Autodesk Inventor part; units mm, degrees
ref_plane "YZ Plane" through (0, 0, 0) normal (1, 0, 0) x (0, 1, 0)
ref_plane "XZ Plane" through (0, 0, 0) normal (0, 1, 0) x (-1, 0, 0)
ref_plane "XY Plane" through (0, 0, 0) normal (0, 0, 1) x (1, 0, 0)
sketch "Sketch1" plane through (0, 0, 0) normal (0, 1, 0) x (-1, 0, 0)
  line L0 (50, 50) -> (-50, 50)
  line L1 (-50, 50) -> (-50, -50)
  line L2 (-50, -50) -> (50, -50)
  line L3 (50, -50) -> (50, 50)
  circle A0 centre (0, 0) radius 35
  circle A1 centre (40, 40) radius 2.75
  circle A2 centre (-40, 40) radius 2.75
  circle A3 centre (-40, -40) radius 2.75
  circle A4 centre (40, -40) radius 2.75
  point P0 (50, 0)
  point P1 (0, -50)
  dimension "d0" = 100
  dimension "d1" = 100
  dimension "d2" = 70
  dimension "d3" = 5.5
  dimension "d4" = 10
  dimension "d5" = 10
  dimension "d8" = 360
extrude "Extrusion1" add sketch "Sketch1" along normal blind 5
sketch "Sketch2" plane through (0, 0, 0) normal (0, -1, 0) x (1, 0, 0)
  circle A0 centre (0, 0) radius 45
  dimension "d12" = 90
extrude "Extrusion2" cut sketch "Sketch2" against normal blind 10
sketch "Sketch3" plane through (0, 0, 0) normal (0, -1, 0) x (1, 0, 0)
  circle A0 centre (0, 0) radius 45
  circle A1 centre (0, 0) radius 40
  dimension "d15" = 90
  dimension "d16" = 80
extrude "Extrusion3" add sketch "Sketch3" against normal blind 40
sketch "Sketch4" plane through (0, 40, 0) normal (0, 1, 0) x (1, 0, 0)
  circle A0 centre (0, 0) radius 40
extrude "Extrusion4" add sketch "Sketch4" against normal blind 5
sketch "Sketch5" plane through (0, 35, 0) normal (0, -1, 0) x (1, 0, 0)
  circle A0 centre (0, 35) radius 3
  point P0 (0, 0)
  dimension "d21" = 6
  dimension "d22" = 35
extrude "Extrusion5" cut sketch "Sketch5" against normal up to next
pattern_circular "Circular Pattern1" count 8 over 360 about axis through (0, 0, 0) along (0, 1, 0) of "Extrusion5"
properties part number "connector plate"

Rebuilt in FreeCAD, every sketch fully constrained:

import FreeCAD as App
import Part
import Sketcher

V = App.Vector
Q = App.Units.Quantity

doc = App.newDocument("Part")
body = doc.addObject("PartDesign::Body", "Body")

sketch1 = doc.addObject("Sketcher::SketchObject", "Sketch")
body.addObject(sketch1)
sketch1.AttachmentSupport = (doc.XZ_Plane, [""])
sketch1.MapMode = "FlatFace"
sketch1.addGeometry([
    Part.LineSegment(V(-50, -50, 0), V(-50, 50, 0)),
    Part.LineSegment(V(-50, 50, 0), V(50, 50, 0)),
    Part.LineSegment(V(50, 50, 0), V(50, -50, 0)),
    Part.LineSegment(V(50, -50, 0), V(-50, -50, 0)),
    Part.Circle(V(40, -40, 0), V(0, 0, 1), 2.8),
    Part.Circle(V(-40, -40, 0), V(0, 0, 1), 2.8),
    Part.Circle(V(40, 40, 0), V(0, 0, 1), 2.8),
    Part.Circle(V(0, 0, 0), V(0, 0, 1), 35),
    Part.Circle(V(-40, 40, 0), V(0, 0, 1), 2.8),
], False)
sketch1.addConstraint([
    Sketcher.Constraint("Coincident", 0, 2, 1, 1),
    Sketcher.Constraint("Coincident", 1, 2, 2, 1),
    Sketcher.Constraint("Coincident", 2, 2, 3, 1),
    Sketcher.Constraint("Coincident", 3, 2, 0, 1),
    Sketcher.Constraint("Vertical", 0),
    Sketcher.Constraint("Horizontal", 1),
    Sketcher.Constraint("Vertical", 2),
    Sketcher.Constraint("Horizontal", 3),
    Sketcher.Constraint("Coincident", 7, 3, -1, 1),
    Sketcher.Constraint("Equal", 4, 5),
    Sketcher.Constraint("Equal", 5, 6),
    Sketcher.Constraint("Equal", 6, 8),
    Sketcher.Constraint("Symmetric", 5, 3, 6, 3, -1, 1),
    Sketcher.Constraint("Symmetric", 4, 3, 8, 3, -1, 1),
    Sketcher.Constraint("Symmetric", 0, 2, 2, 2, -1, 1),
    Sketcher.Constraint("Symmetric", 4, 3, 5, 3, -2),
    Sketcher.Constraint("Equal", 3, 0),
    Sketcher.Constraint("Diameter", 7, Q("70 mm")),
    Sketcher.Constraint("Diameter", 4, Q("5.5 mm")),
    Sketcher.Constraint("DistanceX", 1, 1, 1, 2, Q("100 mm")),
    Sketcher.Constraint("DistanceX", 0, 2, 8, 3, Q("10 mm")),
    Sketcher.Constraint("DistanceY", 8, 3, 0, 2, Q("10 mm")),
])
pad1 = doc.addObject("PartDesign::Pad", "Pad")
body.addObject(pad1)
pad1.Profile = sketch1
pad1.Length = 5
pad1.Reversed = True

sketch2 = doc.addObject("Sketcher::SketchObject", "Sketch001")
body.addObject(sketch2)
sketch2.AttachmentSupport = (doc.XZ_Plane, [""])
sketch2.MapMode = "FlatFace"
sketch2.addGeometry(Part.Circle(V(0, 0, 0), V(0, 0, 1), 45), False)
sketch2.addConstraint([
    Sketcher.Constraint("Coincident", 0, 3, -1, 1),
    Sketcher.Constraint("Diameter", 0, Q("90 mm")),
])
pocket1 = doc.addObject("PartDesign::Pocket", "Pocket")
body.addObject(pocket1)
pocket1.Profile = sketch2
pocket1.Length = 10

sketch3 = doc.addObject("Sketcher::SketchObject", "Sketch002")
body.addObject(sketch3)
sketch3.AttachmentSupport = (doc.XZ_Plane, [""])
sketch3.MapMode = "FlatFace"
sketch3.addGeometry([
    Part.Circle(V(0, 0, 0), V(0, 0, 1), 45),
    Part.Circle(V(0, 0, 0), V(0, 0, 1), 40),
], False)
sketch3.addConstraint([
    Sketcher.Constraint("Coincident", 0, 3, -1, 1),
    Sketcher.Constraint("Coincident", 1, 3, -1, 1),
    Sketcher.Constraint("Diameter", 0, Q("90 mm")),
    Sketcher.Constraint("Diameter", 1, Q("80 mm")),
])
pad2 = doc.addObject("PartDesign::Pad", "Pad001")
body.addObject(pad2)
pad2.Profile = sketch3
pad2.Length = 40
pad2.Reversed = True

sketch4 = doc.addObject("Sketcher::SketchObject", "Sketch003")
body.addObject(sketch4)
sketch4.AttachmentSupport = (doc.XZ_Plane, [""])
sketch4.MapMode = "FlatFace"
sketch4.AttachmentOffset = App.Placement(V(0, 0, -40), App.Rotation())
sketch4.addGeometry(Part.Circle(V(0, 0, 0), V(0, 0, 1), 40), False)
sketch4.addConstraint([
    Sketcher.Constraint("Coincident", 0, 3, -1, 1),
    Sketcher.Constraint("Diameter", 0, Q("80 mm")),
])
pad3 = doc.addObject("PartDesign::Pad", "Pad002")
body.addObject(pad3)
pad3.Profile = sketch4
pad3.Length = 5

sketch5 = doc.addObject("Sketcher::SketchObject", "Sketch004")
body.addObject(sketch5)
sketch5.AttachmentSupport = (doc.XZ_Plane, [""])
sketch5.MapMode = "FlatFace"
sketch5.AttachmentOffset = App.Placement(V(0, 0, -35), App.Rotation())
sketch5.addGeometry(Part.Circle(V(0, 35, 0), V(0, 0, 1), 3), False)
sketch5.addConstraint([
    Sketcher.Constraint("PointOnObject", 0, 3, -2),
    Sketcher.Constraint("Diameter", 0, Q("6 mm")),
    Sketcher.Constraint("DistanceY", -1, 1, 0, 3, Q("35 mm")),
])
pocket2 = doc.addObject("PartDesign::Pocket", "Pocket001")
body.addObject(pocket2)
pocket2.Profile = sketch5
pocket2.Type = "UpToFirst"
doc.recompute()

polarpattern = doc.addObject("PartDesign::PolarPattern", "PolarPattern")
body.addObject(polarpattern)
polarpattern.Originals = [pocket2]
polarpattern.Axis = (doc.Y_Axis, [""])
polarpattern.Angle = 360
polarpattern.Occurrences = 8
body.Tip = polarpattern

doc.recompute()
